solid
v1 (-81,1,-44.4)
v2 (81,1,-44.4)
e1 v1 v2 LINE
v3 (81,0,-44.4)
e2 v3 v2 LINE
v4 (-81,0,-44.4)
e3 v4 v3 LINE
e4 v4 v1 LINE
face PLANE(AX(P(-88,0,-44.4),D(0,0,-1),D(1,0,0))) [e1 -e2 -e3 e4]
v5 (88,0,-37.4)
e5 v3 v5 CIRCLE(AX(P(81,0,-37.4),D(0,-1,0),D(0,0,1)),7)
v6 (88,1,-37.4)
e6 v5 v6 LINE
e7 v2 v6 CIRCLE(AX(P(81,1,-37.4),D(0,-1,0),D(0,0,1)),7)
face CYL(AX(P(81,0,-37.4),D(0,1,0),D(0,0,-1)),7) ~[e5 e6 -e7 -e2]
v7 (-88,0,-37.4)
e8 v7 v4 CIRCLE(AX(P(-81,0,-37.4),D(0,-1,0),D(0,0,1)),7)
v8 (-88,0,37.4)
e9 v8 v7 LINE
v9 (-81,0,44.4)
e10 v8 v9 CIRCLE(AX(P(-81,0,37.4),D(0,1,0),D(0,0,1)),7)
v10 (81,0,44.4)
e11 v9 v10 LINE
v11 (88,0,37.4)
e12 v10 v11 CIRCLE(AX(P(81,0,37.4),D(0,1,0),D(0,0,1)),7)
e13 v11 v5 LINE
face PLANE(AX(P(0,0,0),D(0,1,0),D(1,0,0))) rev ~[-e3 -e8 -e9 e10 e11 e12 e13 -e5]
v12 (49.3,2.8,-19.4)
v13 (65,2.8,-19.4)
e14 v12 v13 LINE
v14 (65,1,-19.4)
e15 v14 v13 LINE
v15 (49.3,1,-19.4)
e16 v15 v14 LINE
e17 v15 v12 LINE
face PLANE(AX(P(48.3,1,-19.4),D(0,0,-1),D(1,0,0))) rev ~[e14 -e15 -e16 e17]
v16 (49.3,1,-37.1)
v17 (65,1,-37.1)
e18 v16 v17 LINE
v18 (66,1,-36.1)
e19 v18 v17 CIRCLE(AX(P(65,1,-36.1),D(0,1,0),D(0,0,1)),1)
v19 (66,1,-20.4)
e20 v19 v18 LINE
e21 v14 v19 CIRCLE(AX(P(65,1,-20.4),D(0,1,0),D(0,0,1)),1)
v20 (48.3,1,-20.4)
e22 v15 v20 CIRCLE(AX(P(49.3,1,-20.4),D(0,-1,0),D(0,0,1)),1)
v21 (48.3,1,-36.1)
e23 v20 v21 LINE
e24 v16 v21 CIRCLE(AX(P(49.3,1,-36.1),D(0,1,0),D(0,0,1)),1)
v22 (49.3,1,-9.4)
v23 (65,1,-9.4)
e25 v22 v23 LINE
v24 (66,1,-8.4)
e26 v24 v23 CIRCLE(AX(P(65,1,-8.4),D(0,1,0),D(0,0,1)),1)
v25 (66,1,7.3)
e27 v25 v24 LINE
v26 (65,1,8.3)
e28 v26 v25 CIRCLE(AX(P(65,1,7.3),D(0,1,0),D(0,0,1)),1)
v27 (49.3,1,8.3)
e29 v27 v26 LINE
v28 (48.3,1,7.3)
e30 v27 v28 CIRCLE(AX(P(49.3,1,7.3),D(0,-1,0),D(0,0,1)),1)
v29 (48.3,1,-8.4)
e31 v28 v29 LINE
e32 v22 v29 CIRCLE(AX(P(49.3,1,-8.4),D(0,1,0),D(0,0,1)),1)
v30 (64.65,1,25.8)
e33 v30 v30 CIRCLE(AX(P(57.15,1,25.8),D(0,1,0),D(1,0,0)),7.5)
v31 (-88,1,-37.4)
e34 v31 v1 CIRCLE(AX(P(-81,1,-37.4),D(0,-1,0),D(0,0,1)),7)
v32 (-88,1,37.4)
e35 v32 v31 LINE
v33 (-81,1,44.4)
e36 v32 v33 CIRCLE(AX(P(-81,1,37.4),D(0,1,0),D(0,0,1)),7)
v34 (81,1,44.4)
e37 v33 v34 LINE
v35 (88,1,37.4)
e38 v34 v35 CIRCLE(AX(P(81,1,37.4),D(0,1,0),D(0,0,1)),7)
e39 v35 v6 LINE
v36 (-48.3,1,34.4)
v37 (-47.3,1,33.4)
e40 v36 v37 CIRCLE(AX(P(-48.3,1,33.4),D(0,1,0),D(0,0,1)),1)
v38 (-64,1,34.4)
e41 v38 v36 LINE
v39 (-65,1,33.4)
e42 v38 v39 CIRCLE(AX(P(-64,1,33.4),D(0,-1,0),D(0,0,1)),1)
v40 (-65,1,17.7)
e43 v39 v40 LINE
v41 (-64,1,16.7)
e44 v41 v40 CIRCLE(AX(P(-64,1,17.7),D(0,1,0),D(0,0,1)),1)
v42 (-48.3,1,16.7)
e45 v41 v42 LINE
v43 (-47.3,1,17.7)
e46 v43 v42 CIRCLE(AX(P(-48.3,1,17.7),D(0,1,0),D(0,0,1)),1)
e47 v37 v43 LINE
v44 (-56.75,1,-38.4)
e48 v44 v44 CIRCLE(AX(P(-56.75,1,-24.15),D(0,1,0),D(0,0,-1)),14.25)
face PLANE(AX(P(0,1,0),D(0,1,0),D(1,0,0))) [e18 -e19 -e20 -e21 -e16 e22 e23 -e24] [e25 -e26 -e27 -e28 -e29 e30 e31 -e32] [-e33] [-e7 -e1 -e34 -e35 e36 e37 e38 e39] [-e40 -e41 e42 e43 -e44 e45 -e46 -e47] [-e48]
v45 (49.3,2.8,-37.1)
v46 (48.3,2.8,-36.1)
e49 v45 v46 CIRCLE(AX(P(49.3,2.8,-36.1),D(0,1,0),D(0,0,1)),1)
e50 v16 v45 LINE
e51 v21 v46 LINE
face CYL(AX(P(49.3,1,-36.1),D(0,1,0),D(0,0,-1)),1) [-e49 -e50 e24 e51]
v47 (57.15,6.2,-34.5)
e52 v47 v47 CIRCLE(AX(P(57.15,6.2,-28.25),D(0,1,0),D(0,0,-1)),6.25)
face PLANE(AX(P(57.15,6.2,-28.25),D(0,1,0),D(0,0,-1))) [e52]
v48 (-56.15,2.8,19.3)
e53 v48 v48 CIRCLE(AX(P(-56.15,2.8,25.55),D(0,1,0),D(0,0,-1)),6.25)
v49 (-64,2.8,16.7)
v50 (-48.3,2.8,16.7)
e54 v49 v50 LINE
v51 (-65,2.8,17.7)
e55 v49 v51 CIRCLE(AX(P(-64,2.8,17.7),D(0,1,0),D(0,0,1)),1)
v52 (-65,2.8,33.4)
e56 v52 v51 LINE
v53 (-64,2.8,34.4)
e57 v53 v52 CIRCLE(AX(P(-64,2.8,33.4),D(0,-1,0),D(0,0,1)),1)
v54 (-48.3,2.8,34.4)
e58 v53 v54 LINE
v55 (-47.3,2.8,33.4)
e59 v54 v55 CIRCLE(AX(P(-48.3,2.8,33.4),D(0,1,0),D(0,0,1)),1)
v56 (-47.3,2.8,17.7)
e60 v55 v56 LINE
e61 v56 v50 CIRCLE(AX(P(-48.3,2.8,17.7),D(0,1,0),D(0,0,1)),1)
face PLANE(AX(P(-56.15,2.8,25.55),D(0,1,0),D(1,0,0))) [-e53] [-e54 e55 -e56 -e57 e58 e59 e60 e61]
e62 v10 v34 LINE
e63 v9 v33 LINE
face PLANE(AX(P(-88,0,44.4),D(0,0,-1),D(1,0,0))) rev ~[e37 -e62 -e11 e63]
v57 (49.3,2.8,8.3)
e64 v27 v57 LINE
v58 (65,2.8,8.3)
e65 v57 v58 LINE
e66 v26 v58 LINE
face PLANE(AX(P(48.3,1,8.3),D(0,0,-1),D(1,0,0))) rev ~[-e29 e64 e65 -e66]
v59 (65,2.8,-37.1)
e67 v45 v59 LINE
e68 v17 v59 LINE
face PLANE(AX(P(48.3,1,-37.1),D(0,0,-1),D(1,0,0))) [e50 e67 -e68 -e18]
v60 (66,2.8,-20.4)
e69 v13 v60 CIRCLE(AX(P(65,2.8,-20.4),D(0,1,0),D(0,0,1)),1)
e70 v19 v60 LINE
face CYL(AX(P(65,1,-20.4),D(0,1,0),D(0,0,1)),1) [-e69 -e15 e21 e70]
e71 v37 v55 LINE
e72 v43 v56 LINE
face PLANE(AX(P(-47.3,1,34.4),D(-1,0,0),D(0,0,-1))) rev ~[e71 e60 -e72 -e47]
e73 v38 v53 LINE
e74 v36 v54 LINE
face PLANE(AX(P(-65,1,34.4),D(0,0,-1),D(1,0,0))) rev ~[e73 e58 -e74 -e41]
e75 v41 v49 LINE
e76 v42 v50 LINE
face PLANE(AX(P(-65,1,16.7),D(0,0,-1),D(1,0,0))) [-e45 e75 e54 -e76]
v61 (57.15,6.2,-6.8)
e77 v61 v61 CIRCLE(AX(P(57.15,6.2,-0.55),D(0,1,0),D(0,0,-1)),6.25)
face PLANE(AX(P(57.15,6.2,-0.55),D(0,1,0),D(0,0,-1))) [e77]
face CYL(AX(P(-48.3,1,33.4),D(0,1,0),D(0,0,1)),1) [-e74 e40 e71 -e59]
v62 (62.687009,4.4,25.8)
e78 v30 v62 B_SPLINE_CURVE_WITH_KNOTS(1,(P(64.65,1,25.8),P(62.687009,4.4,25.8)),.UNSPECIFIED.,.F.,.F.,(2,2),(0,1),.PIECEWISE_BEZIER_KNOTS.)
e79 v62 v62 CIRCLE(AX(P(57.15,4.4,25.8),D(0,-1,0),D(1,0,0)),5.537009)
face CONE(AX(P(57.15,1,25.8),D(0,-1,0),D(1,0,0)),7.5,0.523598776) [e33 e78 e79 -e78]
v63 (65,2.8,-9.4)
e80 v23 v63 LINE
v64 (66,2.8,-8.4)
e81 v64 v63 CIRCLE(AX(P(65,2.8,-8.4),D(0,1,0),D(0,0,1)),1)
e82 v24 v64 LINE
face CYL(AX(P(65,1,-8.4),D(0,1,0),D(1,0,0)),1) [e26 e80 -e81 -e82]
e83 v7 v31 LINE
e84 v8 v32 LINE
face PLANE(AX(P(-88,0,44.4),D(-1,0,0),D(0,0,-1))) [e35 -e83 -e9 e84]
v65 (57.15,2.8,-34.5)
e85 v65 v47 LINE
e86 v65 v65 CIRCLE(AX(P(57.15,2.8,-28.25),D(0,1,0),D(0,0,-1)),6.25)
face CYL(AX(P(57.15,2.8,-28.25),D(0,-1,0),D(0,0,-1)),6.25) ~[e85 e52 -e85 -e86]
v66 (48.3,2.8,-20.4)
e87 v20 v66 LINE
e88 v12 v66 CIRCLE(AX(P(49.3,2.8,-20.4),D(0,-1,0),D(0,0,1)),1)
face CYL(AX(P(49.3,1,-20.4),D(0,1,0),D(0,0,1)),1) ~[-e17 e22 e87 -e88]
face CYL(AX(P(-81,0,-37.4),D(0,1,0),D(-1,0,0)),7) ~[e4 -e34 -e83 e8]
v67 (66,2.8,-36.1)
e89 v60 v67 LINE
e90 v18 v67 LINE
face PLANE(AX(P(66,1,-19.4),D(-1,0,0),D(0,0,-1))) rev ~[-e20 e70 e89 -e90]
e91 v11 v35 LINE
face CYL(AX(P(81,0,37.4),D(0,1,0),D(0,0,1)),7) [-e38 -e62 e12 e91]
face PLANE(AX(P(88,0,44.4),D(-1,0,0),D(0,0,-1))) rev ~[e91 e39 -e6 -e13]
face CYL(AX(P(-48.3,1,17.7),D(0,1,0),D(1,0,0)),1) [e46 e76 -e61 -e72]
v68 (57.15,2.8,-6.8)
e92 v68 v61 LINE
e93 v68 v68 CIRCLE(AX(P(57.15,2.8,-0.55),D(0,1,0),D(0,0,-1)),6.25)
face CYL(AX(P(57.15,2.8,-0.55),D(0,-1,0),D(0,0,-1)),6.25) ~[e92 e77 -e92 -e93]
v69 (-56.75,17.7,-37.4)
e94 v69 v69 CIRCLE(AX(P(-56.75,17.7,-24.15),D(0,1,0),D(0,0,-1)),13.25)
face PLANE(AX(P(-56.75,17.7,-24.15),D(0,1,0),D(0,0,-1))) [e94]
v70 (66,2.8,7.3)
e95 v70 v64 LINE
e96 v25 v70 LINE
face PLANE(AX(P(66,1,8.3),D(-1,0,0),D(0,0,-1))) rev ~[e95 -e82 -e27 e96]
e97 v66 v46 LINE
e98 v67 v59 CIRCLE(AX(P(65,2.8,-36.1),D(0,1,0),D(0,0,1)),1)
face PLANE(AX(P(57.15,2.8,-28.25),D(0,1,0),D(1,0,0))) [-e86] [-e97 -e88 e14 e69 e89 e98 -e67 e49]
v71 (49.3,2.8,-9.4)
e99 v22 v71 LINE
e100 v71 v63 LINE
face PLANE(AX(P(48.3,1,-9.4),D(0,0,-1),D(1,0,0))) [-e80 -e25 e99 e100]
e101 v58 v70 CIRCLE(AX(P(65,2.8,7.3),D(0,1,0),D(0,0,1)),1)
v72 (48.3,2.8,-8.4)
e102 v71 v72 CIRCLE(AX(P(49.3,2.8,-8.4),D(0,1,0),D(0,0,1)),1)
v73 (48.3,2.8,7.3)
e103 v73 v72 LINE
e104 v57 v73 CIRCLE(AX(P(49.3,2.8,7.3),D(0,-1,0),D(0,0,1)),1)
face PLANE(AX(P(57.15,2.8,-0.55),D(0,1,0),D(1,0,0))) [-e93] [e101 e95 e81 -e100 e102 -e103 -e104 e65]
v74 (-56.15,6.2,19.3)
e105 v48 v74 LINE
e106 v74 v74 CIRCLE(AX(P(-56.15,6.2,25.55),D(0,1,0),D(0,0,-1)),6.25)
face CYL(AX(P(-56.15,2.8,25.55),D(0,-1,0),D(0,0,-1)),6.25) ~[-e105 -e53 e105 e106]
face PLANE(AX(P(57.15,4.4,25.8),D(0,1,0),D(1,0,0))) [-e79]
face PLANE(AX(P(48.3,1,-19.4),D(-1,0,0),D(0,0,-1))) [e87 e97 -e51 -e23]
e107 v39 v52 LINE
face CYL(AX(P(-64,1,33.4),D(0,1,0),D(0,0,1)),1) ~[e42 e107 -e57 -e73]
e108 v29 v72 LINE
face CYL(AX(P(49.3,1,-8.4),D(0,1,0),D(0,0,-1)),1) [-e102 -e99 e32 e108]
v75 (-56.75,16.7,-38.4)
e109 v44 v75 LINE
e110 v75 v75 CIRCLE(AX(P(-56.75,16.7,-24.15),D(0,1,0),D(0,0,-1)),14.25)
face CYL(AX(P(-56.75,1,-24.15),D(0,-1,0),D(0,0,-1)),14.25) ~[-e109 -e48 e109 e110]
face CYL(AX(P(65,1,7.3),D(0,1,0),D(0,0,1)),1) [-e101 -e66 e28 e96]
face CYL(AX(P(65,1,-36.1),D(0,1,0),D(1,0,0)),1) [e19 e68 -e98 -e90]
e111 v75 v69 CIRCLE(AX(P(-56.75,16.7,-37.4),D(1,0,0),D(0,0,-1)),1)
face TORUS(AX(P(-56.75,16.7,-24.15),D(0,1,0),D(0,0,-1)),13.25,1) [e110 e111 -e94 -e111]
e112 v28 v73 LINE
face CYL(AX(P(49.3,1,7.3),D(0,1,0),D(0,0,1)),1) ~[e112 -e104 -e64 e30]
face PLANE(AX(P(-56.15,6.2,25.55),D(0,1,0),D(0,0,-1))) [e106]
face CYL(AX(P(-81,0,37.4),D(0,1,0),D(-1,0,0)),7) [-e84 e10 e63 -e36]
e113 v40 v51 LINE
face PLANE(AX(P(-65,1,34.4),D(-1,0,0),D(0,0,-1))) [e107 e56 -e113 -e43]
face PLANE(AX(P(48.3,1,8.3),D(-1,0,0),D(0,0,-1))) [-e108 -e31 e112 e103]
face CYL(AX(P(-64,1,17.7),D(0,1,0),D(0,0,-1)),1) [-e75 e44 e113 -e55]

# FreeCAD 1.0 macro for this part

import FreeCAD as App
import Part
import Sketcher

V = App.Vector
Q = App.Units.Quantity


def edges_at(feature, points):
    """Names of the edges that pass closest to the given points."""
    edges = feature.Shape.Edges
    near = lambda p: min(range(len(edges)), key=lambda i: edges[i].distToShape(Part.Vertex(*p))[0])
    return sorted({f"Edge{near(p) + 1}" for p in points})

doc = App.newDocument("Part")
body = doc.addObject("PartDesign::Body", "Body")

sketch1 = body.newObject("Sketcher::SketchObject", "Sketch")
sketch1.AttachmentSupport = (doc.getObject("XZ_Plane"), [""])
sketch1.MapMode = "FlatFace"
sketch1.addGeometry([
    Part.LineSegment(V(-88, -44.4, 0), V(-88, 44.4, 0)),
    Part.LineSegment(V(-88, 44.4, 0), V(88, 44.4, 0)),
    Part.LineSegment(V(88, 44.4, 0), V(88, -44.4, 0)),
    Part.LineSegment(V(88, -44.4, 0), V(-88, -44.4, 0)),
], False)
sketch1.addConstraint([
    Sketcher.Constraint("Coincident", 0, 2, 1, 1),
    Sketcher.Constraint("Coincident", 1, 2, 2, 1),
    Sketcher.Constraint("Coincident", 2, 2, 3, 1),
    Sketcher.Constraint("Coincident", 3, 2, 0, 1),
    Sketcher.Constraint("Vertical", 0),
    Sketcher.Constraint("Horizontal", 1),
    Sketcher.Constraint("Vertical", 2),
    Sketcher.Constraint("Horizontal", 3),
    Sketcher.Constraint("Symmetric", 0, 2, 2, 2, -1, 1),
    Sketcher.Constraint("DistanceX", 1, 1, 1, 2, Q("176 mm")),
    Sketcher.Constraint("DistanceY", 0, 1, 0, 2, Q("88.8 mm")),
])
pad1 = body.newObject("PartDesign::Pad", "Pad")
pad1.Profile = sketch1
pad1.Length = 1
pad1.Reversed = True

sketch2 = body.newObject("Sketcher::SketchObject", "Sketch001")
sketch2.AttachmentSupport = (doc.getObject("XZ_Plane"), [""])
sketch2.MapMode = "FlatFace"
sketch2.AttachmentOffset = App.Placement(V(0, 0, -1), App.Rotation())
sketch2.addGeometry(Part.Circle(V(-56.75, -24.15, 0), V(0, 0, 1), 14.25), False)
sketch2.addConstraint([
    Sketcher.Constraint("Diameter", 0, Q("28.5 mm")),
    Sketcher.Constraint("DistanceX", 0, 3, -1, 1, Q("56.75 mm")),
    Sketcher.Constraint("DistanceY", 0, 3, -1, 1, Q("24.15 mm")),
])
pad2 = body.newObject("PartDesign::Pad", "Pad001")
pad2.Profile = sketch2
pad2.Length = 16.7
pad2.Reversed = True
doc.recompute()

fillet = body.newObject("PartDesign::Fillet", "Fillet")
fillet.Base = (pad2, edges_at(pad2, [(-56.75, 17.7, -9.9)]))
fillet.Radius = 1

sketch3 = body.newObject("Sketcher::SketchObject", "Sketch002")
sketch3.AttachmentSupport = (doc.getObject("XZ_Plane"), [""])
sketch3.MapMode = "FlatFace"
sketch3.AttachmentOffset = App.Placement(V(0, 0, -1), App.Rotation())
sketch3.addGeometry([
    Part.LineSegment(V(-65, 16.7, 0), V(-65, 34.4, 0)),
    Part.LineSegment(V(-65, 34.4, 0), V(-47.3, 34.4, 0)),
    Part.LineSegment(V(-47.3, 34.4, 0), V(-47.3, 16.7, 0)),
    Part.LineSegment(V(-47.3, 16.7, 0), V(-65, 16.7, 0)),
    Part.LineSegment(V(48.3, -37.1, 0), V(48.3, -19.4, 0)),
    Part.LineSegment(V(48.3, -19.4, 0), V(66, -19.4, 0)),
    Part.LineSegment(V(66, -19.4, 0), V(66, -37.1, 0)),
    Part.LineSegment(V(66, -37.1, 0), V(48.3, -37.1, 0)),
    Part.LineSegment(V(48.3, -9.4, 0), V(48.3, 8.3, 0)),
    Part.LineSegment(V(48.3, 8.3, 0), V(66, 8.3, 0)),
    Part.LineSegment(V(66, 8.3, 0), V(66, -9.4, 0)),
    Part.LineSegment(V(66, -9.4, 0), V(48.3, -9.4, 0)),
], False)
sketch3.addConstraint([
    Sketcher.Constraint("Coincident", 0, 2, 1, 1),
    Sketcher.Constraint("Coincident", 1, 2, 2, 1),
    Sketcher.Constraint("Coincident", 2, 2, 3, 1),
    Sketcher.Constraint("Coincident", 3, 2, 0, 1),
    Sketcher.Constraint("Coincident", 4, 2, 5, 1),
    Sketcher.Constraint("Coincident", 5, 2, 6, 1),
    Sketcher.Constraint("Coincident", 6, 2, 7, 1),
    Sketcher.Constraint("Coincident", 7, 2, 4, 1),
    Sketcher.Constraint("Coincident", 8, 2, 9, 1),
    Sketcher.Constraint("Coincident", 9, 2, 10, 1),
    Sketcher.Constraint("Coincident", 10, 2, 11, 1),
    Sketcher.Constraint("Coincident", 11, 2, 8, 1),
    Sketcher.Constraint("Vertical", 0),
    Sketcher.Constraint("Horizontal", 1),
    Sketcher.Constraint("Vertical", 2),
    Sketcher.Constraint("Horizontal", 3),
    Sketcher.Constraint("Vertical", 4),
    Sketcher.Constraint("Horizontal", 5),
    Sketcher.Constraint("Vertical", 6),
    Sketcher.Constraint("Horizontal", 7),
    Sketcher.Constraint("Vertical", 8),
    Sketcher.Constraint("Horizontal", 9),
    Sketcher.Constraint("Vertical", 10),
    Sketcher.Constraint("Horizontal", 11),
    Sketcher.Constraint("Vertical", 7, 2, 8, 2),
    Sketcher.Constraint("Vertical", 6, 2, 9, 2),
    Sketcher.Constraint("Equal", 3, 5),
    Sketcher.Constraint("Equal", 11, 0),
    Sketcher.Constraint("Equal", 2, 4),
    Sketcher.Constraint("Equal", 6, 8),
    Sketcher.Constraint("DistanceX", 1, 1, 1, 2, Q("17.7 mm")),
    Sketcher.Constraint("DistanceX", 0, 2, -1, 1, Q("65 mm")),
    Sketcher.Constraint("DistanceX", -1, 1, 5, 2, Q("66 mm")),
    Sketcher.Constraint("DistanceY", 5, 2, 10, 2, Q("10 mm")),
    Sketcher.Constraint("DistanceY", -1, 1, 0, 2, Q("34.4 mm")),
    Sketcher.Constraint("DistanceY", 4, 2, -1, 1, Q("19.4 mm")),
])
pad3 = body.newObject("PartDesign::Pad", "Pad002")
pad3.Profile = sketch3
pad3.Length = 1.8
pad3.Reversed = True
doc.recompute()

fillet2 = body.newObject("PartDesign::Fillet", "Fillet001")
fillet2.Base = (pad3, edges_at(pad3, [
    (-47.3, 1.9, 34.4),
    (-47.3, 1.9, 16.7),
    (-65, 1.9, 16.7),
    (-65, 1.9, 34.4),
    (66, 1.9, -19.4),
    (66, 1.9, -37.1),
    (48.3, 1.9, -37.1),
    (48.3, 1.9, -19.4),
    (66, 1.9, 8.3),
    (66, 1.9, -9.4),
    (48.3, 1.9, -9.4),
    (48.3, 1.9, 8.3),
]))
fillet2.Radius = 1
doc.recompute()

fillet3 = body.newObject("PartDesign::Fillet", "Fillet002")
fillet3.Base = (fillet2, edges_at(fillet2, [
    (88, 0.5, 44.4),
    (-88, 0.5, 44.4),
    (-88, 0.5, -44.4),
    (88, 0.5, -44.4),
]))
fillet3.Radius = 7

sketch4 = body.newObject("Sketcher::SketchObject", "Sketch003")
sketch4.AttachmentSupport = (doc.getObject("XZ_Plane"), [""])
sketch4.MapMode = "FlatFace"
sketch4.AttachmentOffset = App.Placement(V(0, 0, -2.8), App.Rotation())
sketch4.addGeometry([
    Part.Circle(V(-56.15, 25.55, 0), V(0, 0, 1), 6.25),
    Part.Circle(V(57.15, -28.25, 0), V(0, 0, 1), 6.25),
    Part.Circle(V(57.15, -0.55, 0), V(0, 0, 1), 6.25),
], False)
sketch4.addConstraint([
    Sketcher.Constraint("Equal", 0, 1),
    Sketcher.Constraint("Equal", 1, 2),
    Sketcher.Constraint("Vertical", 1, 3, 2, 3),
    Sketcher.Constraint("Diameter", 0, Q("12.5 mm")),
    Sketcher.Constraint("DistanceX", 0, 3, 1, 3, Q("113.3 mm")),
    Sketcher.Constraint("DistanceY", 1, 3, 0, 3, Q("53.8 mm")),
    Sketcher.Constraint("DistanceY", 1, 3, 2, 3, Q("27.7 mm")),
    Sketcher.Constraint("DistanceX", 0, 3, -1, 1, Q("56.15 mm")),
    Sketcher.Constraint("DistanceY", -1, 1, 0, 3, Q("25.55 mm")),
])
pad4 = body.newObject("PartDesign::Pad", "Pad003")
pad4.Profile = sketch4
pad4.Length = 3.4
pad4.Reversed = True

sketch5 = body.newObject("Sketcher::SketchObject", "Sketch004")
sketch5.AttachmentSupport = (doc.getObject("XZ_Plane"), [""])
sketch5.MapMode = "FlatFace"
sketch5.AttachmentOffset = App.Placement(V(0, 0, -1), App.Rotation())
sketch5.addGeometry(Part.Circle(V(57.15, 25.8, 0), V(0, 0, 1), 7.5), False)
sketch5.addConstraint([
    Sketcher.Constraint("Diameter", 0, Q("15 mm")),
    Sketcher.Constraint("DistanceY", -1, 1, 0, 3, Q("25.8 mm")),
    Sketcher.Constraint("DistanceX", -1, 1, 0, 3, Q("57.15 mm")),
])
pad5 = body.newObject("PartDesign::Pad", "Pad004")
pad5.Profile = sketch5
pad5.Length = 3.4
pad5.Reversed = True
pad5.TaperAngle = -30

doc.recompute()
